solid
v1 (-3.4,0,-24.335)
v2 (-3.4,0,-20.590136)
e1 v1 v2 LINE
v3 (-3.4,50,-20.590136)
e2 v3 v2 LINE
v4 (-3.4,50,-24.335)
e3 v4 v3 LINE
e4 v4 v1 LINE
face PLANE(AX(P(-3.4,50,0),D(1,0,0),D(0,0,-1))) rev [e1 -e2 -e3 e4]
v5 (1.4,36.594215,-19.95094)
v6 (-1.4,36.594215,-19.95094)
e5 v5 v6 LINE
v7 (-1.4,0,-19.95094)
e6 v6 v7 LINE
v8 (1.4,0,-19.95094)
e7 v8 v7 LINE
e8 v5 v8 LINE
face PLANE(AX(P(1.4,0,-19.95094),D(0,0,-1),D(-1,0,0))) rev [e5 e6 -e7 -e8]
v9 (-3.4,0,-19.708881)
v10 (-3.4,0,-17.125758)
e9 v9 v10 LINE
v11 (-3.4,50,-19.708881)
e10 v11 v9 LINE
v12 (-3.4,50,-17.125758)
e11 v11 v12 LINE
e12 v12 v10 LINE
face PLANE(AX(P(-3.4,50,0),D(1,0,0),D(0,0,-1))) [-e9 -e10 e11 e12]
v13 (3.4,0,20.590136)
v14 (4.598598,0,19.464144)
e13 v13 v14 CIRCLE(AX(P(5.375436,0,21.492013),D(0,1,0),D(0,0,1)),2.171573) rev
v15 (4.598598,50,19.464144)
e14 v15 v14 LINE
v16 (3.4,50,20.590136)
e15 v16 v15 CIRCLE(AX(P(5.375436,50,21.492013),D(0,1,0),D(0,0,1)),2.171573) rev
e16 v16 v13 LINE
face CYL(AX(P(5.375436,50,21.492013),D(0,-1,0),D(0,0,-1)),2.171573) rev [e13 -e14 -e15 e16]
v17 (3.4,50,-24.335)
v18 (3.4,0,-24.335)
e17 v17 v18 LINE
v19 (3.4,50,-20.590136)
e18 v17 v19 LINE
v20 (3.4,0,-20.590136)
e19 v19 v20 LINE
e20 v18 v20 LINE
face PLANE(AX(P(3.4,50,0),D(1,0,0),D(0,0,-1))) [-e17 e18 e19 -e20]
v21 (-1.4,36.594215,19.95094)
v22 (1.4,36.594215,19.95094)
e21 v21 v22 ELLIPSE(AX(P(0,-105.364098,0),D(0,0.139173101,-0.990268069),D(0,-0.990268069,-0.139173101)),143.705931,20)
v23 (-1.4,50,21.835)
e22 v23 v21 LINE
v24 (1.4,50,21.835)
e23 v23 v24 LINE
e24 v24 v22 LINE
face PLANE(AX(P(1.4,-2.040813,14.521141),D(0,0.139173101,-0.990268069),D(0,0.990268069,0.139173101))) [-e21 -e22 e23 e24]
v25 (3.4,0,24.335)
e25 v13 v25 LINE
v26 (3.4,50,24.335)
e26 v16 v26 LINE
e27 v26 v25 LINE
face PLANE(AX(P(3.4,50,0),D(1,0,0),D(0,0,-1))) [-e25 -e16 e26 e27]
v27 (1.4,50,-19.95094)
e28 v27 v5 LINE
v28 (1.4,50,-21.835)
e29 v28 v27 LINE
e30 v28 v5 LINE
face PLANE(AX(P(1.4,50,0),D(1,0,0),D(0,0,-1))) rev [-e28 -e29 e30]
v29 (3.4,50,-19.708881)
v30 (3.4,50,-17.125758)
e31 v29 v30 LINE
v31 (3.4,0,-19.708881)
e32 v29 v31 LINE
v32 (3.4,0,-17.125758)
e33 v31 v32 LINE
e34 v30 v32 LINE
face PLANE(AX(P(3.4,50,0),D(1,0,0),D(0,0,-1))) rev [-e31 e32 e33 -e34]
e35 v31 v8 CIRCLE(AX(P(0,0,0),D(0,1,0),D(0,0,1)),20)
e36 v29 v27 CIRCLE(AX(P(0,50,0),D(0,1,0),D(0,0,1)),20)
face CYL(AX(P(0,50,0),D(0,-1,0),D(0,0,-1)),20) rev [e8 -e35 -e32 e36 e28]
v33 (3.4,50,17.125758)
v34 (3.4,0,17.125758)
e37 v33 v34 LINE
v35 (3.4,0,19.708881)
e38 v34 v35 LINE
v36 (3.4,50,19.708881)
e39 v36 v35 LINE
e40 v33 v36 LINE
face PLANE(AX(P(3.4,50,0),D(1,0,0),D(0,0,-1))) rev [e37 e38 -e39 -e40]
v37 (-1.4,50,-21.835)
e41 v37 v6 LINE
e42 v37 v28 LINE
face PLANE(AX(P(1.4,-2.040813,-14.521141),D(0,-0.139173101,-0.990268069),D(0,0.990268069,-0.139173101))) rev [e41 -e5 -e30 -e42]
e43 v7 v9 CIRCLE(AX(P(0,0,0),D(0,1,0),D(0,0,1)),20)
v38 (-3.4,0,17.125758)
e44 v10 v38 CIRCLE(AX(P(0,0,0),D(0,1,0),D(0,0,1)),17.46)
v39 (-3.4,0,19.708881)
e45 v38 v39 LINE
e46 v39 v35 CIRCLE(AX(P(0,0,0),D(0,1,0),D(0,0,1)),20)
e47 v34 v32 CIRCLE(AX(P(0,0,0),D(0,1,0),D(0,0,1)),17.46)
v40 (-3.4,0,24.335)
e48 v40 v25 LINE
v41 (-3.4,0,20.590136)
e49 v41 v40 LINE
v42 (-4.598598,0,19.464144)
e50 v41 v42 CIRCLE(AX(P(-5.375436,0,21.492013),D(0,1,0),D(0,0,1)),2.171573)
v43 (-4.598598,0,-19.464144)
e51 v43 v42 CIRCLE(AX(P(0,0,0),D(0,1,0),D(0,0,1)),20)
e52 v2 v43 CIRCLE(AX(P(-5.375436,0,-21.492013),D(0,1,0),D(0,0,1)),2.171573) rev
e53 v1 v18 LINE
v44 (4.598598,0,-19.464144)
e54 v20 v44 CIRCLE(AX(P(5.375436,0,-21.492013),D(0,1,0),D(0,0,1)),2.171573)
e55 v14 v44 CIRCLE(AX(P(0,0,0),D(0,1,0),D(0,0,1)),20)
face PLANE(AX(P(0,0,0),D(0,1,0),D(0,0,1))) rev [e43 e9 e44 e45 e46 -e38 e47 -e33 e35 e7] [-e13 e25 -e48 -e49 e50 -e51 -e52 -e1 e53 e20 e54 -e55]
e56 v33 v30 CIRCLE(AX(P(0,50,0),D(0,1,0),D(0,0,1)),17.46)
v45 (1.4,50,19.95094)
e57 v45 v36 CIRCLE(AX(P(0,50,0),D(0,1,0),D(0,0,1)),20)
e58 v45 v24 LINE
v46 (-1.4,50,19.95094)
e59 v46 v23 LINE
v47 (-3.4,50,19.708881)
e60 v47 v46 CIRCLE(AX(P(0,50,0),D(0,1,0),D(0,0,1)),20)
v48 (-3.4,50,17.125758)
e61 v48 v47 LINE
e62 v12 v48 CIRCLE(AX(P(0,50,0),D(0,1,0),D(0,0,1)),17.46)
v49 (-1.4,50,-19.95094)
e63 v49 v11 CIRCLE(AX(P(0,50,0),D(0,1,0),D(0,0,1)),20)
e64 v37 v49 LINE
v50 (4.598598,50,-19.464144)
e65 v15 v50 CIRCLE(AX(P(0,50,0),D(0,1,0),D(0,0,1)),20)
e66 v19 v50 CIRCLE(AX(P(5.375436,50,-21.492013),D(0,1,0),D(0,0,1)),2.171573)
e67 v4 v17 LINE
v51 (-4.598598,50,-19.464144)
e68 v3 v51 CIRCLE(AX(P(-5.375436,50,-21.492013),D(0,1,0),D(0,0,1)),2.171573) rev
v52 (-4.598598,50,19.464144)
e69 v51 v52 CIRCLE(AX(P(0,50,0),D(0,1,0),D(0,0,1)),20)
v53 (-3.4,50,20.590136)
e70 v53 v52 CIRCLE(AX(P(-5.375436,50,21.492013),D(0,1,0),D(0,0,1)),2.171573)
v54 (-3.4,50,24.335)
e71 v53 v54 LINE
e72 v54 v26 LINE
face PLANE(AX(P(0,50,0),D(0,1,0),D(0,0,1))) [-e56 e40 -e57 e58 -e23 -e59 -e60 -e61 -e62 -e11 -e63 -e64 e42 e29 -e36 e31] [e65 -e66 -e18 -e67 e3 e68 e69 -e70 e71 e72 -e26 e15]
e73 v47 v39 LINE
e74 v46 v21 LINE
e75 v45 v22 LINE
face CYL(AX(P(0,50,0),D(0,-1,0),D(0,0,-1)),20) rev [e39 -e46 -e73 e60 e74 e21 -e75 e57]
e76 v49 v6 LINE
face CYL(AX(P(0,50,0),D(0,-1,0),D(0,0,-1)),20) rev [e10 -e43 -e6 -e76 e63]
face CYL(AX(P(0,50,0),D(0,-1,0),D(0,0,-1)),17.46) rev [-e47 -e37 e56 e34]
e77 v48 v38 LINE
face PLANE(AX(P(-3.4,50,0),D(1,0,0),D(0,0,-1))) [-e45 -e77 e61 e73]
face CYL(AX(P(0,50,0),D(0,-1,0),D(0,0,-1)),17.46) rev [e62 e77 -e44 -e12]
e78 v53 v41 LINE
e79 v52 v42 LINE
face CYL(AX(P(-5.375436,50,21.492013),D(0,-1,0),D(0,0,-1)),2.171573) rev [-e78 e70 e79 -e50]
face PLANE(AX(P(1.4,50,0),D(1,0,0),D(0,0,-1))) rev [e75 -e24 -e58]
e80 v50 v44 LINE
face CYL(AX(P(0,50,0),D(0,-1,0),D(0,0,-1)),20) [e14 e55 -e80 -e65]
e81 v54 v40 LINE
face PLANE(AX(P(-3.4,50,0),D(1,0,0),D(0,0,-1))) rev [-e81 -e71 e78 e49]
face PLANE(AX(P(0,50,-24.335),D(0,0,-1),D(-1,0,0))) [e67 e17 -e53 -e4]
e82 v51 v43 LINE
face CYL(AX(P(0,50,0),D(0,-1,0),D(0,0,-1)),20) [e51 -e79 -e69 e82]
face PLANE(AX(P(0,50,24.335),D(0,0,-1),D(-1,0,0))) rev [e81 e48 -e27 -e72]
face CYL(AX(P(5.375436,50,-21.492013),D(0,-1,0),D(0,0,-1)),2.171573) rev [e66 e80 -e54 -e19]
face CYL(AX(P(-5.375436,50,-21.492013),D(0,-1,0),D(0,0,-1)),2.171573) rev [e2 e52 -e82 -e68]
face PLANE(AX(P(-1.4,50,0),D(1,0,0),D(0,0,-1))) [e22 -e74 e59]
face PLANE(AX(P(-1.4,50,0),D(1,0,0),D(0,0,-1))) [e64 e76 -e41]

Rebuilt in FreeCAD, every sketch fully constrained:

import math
import FreeCAD as App
import Part
import Sketcher

V = App.Vector
Q = App.Units.Quantity


def add_polygon(sketch, points):
    """Adds a closed chain of lines whose ends are joined by coincident constraints."""
    first, n = sketch.GeometryCount, len(points)
    for a, b in zip(points, points[1:] + points[:1]):
        sketch.addGeometry(Part.LineSegment(App.Vector(*a, 0), App.Vector(*b, 0)), False)
    for i in range(n):
        sketch.addConstraint(Sketcher.Constraint("Coincident", first + i, 2, first + (i + 1) % n, 1))

doc = App.newDocument("Part")
params = doc.addObject("Spreadsheet::Sheet", "Params")
for row, (alias, value) in enumerate([
    ("sketch1_radius", "20 mm"),
    ("sketch1_radius2", "17.46 mm"),
    ("sketch1_width", "6.8 mm"),
    ("sketch1_width2", "2.8 mm"),
    ("pad1_length", "50 mm"),
    ("sketch2_width", "50 mm"),
    ("pad2_length", "2.8 mm"),
    ("sketch3_radius", "20 mm"),
    ("sketch3_width", "2.8 mm"),
], start=1):
    params.set(f"A{row}", alias)
    params.set(f"B{row}", "=" + value)
    params.setAlias(f"B{row}", alias)

body = doc.addObject("PartDesign::Body", "Body")

sketch1 = body.newObject("Sketcher::SketchObject", "Sketch")
sketch1.AttachmentSupport = (doc.getObject("XZ_Plane"), [""])
sketch1.MapMode = "FlatFace"
sketch1.addGeometry([
    Part.ArcOfCircle(Part.Circle(V(5.4, -21.5, 0), V(0, 0, 1), 2.2), math.radians(111), math.radians(155)),
    Part.LineSegment(V(3.4, -20.6, 0), V(3.4, -24.3, 0)),
    Part.LineSegment(V(3.4, -24.3, 0), V(-3.4, -24.3, 0)),
    Part.LineSegment(V(-3.4, -24.3, 0), V(-3.4, -20.6, 0)),
    Part.ArcOfCircle(Part.Circle(V(-5.4, -21.5, 0), V(0, 0, 1), 2.2), math.radians(25), math.radians(69)),
    Part.ArcOfCircle(Part.Circle(V(0, 0, 0), V(0, 0, 1), 20), math.radians(103), math.radians(257)),
    Part.ArcOfCircle(Part.Circle(V(-5.4, 21.5, 0), V(0, 0, 1), 2.2), math.radians(-69), math.radians(-25)),
    Part.LineSegment(V(-3.4, 20.6, 0), V(-3.4, 24.3, 0)),
    Part.LineSegment(V(-3.4, 24.3, 0), V(3.4, 24.3, 0)),
    Part.LineSegment(V(3.4, 24.3, 0), V(3.4, 20.6, 0)),
    Part.ArcOfCircle(Part.Circle(V(5.4, 21.5, 0), V(0, 0, 1), 2.2), math.radians(-155), math.radians(-111)),
    Part.ArcOfCircle(Part.Circle(V(0, 0, 0), V(0, 0, 1), 20), math.radians(0), math.radians(77)),
    Part.ArcOfCircle(Part.Circle(V(0, 0, 0), V(0, 0, 1), 20), math.radians(-77), math.radians(0)),
    Part.LineSegment(V(-3.4, 19.7, 0), V(-3.4, 17.1, 0)),
    Part.ArcOfCircle(Part.Circle(V(0, 0, 0), V(0, 0, 1), 17.5), math.radians(101), math.radians(259)),
    Part.LineSegment(V(-3.4, -17.1, 0), V(-3.4, -19.7, 0)),
    Part.ArcOfCircle(Part.Circle(V(0, 0, 0), V(0, 0, 1), 20), math.radians(-99.79), math.radians(-94.01)),
    Part.LineSegment(V(-1.4, -20, 0), V(-1.4, -21.8, 0)),
    Part.LineSegment(V(-1.4, -21.8, 0), V(1.4, -21.8, 0)),
    Part.LineSegment(V(1.4, -21.8, 0), V(1.4, -20, 0)),
    Part.ArcOfCircle(Part.Circle(V(0, 0, 0), V(0, 0, 1), 20), math.radians(-85.99), math.radians(-80.21)),
    Part.LineSegment(V(3.4, -19.7, 0), V(3.4, -17.1, 0)),
    Part.ArcOfCircle(Part.Circle(V(0, 0, 0), V(0, 0, 1), 17.5), math.radians(-79), math.radians(0)),
    Part.ArcOfCircle(Part.Circle(V(0, 0, 0), V(0, 0, 1), 17.5), math.radians(0), math.radians(79)),
    Part.LineSegment(V(3.4, 17.1, 0), V(3.4, 19.7, 0)),
    Part.ArcOfCircle(Part.Circle(V(0, 0, 0), V(0, 0, 1), 20), math.radians(80.21), math.radians(85.99)),
    Part.LineSegment(V(1.4, 20, 0), V(1.4, 21.8, 0)),
    Part.LineSegment(V(1.4, 21.8, 0), V(-1.4, 21.8, 0)),
    Part.LineSegment(V(-1.4, 21.8, 0), V(-1.4, 20, 0)),
    Part.ArcOfCircle(Part.Circle(V(0, 0, 0), V(0, 0, 1), 20), math.radians(94.01), math.radians(99.79)),
], False)
sketch1.addConstraint([
    Sketcher.Constraint("Coincident", 0, 2, 1, 1),
    Sketcher.Constraint("Coincident", 1, 2, 2, 1),
    Sketcher.Constraint("Coincident", 2, 2, 3, 1),
    Sketcher.Constraint("Coincident", 3, 2, 4, 1),
    Sketcher.Constraint("Coincident", 4, 2, 5, 2),
    Sketcher.Constraint("Coincident", 5, 1, 6, 1),
    Sketcher.Constraint("Coincident", 6, 2, 7, 1),
    Sketcher.Constraint("Coincident", 7, 2, 8, 1),
    Sketcher.Constraint("Coincident", 8, 2, 9, 1),
    Sketcher.Constraint("Coincident", 9, 2, 10, 1),
    Sketcher.Constraint("Coincident", 10, 2, 11, 2),
    Sketcher.Constraint("Tangent", 11, 1, 12, 2),
    Sketcher.Constraint("Coincident", 12, 1, 0, 1),
    Sketcher.Constraint("Coincident", 13, 2, 14, 1),
    Sketcher.Constraint("Coincident", 14, 2, 15, 1),
    Sketcher.Constraint("Coincident", 15, 2, 16, 1),
    Sketcher.Constraint("Coincident", 16, 2, 17, 1),
    Sketcher.Constraint("Coincident", 17, 2, 18, 1),
    Sketcher.Constraint("Coincident", 18, 2, 19, 1),
    Sketcher.Constraint("Coincident", 19, 2, 20, 1),
    Sketcher.Constraint("Coincident", 20, 2, 21, 1),
    Sketcher.Constraint("Coincident", 21, 2, 22, 1),
    Sketcher.Constraint("Tangent", 22, 2, 23, 1),
    Sketcher.Constraint("Coincident", 23, 2, 24, 1),
    Sketcher.Constraint("Coincident", 24, 2, 25, 1),
    Sketcher.Constraint("Coincident", 25, 2, 26, 1),
    Sketcher.Constraint("Coincident", 26, 2, 27, 1),
    Sketcher.Constraint("Coincident", 27, 2, 28, 1),
    Sketcher.Constraint("Coincident", 28, 2, 29, 1),
    Sketcher.Constraint("Coincident", 29, 2, 13, 1),
    Sketcher.Constraint("Vertical", 1),
    Sketcher.Constraint("Horizontal", 2),
    Sketcher.Constraint("Vertical", 3),
    Sketcher.Constraint("Vertical", 7),
    Sketcher.Constraint("Horizontal", 8),
    Sketcher.Constraint("Vertical", 9),
    Sketcher.Constraint("Vertical", 13),
    Sketcher.Constraint("Vertical", 15),
    Sketcher.Constraint("Vertical", 17),
    Sketcher.Constraint("Horizontal", 18),
    Sketcher.Constraint("Vertical", 19),
    Sketcher.Constraint("Vertical", 21),
    Sketcher.Constraint("Vertical", 24),
    Sketcher.Constraint("Vertical", 26),
    Sketcher.Constraint("Horizontal", 27),
    Sketcher.Constraint("Vertical", 28),
    Sketcher.Constraint("Coincident", 5, 3, -1, 1),
    Sketcher.Constraint("Coincident", 11, 3, -1, 1),
    Sketcher.Constraint("Coincident", 14, 3, -1, 1),
    Sketcher.Constraint("Coincident", 16, 3, -1, 1),
    Sketcher.Constraint("Coincident", 20, 3, -1, 1),
    Sketcher.Constraint("Coincident", 22, 3, -1, 1),
    Sketcher.Constraint("Coincident", 25, 3, -1, 1),
    Sketcher.Constraint("Coincident", 29, 3, -1, 1),
    Sketcher.Constraint("Equal", 0, 4),
    Sketcher.Constraint("Equal", 4, 6),
    Sketcher.Constraint("Equal", 6, 10),
    Sketcher.Constraint("Equal", 5, 11),
    Sketcher.Constraint("Equal", 11, 12),
    Sketcher.Constraint("Equal", 12, 16),
    Sketcher.Constraint("Equal", 16, 20),
    Sketcher.Constraint("Equal", 14, 22),
    Sketcher.Constraint("Equal", 22, 23),
    Sketcher.Constraint("Equal", 20, 25),
    Sketcher.Constraint("Equal", 25, 29),
    Sketcher.Constraint("Symmetric", 0, 3, 6, 3, -1, 1),
    Sketcher.Constraint("Symmetric", 4, 3, 10, 3, -1, 1),
    Sketcher.Constraint("Symmetric", 1, 2, 7, 2, -1, 1),
    Sketcher.Constraint("Symmetric", 17, 2, 26, 2, -1, 1),
    Sketcher.Constraint("Symmetric", 0, 3, 4, 3, -2),
    Sketcher.Constraint("PointOnObject", 11, 1, -1),
    Sketcher.Constraint("PointOnObject", 22, 2, -1),
    Sketcher.Constraint("Horizontal", 0, 2, 3, 2),
    Sketcher.Constraint("Horizontal", 6, 2, 9, 2),
    Sketcher.Constraint("Horizontal", 16, 2, 19, 2),
    Sketcher.Constraint("Horizontal", 15, 2, 20, 2),
    Sketcher.Constraint("Horizontal", 13, 2, 23, 2),
    Sketcher.Constraint("Horizontal", 25, 2, 28, 2),
    Sketcher.Constraint("Vertical", 7, 2, 13, 2),
    Sketcher.Constraint("Vertical", 13, 2, 14, 2),
    Sketcher.Constraint("Radius", 5, 20.0),
    Sketcher.Constraint("Radius", 14, 17.46),
    Sketcher.Constraint("DistanceX", 2, 2, 2, 1, 6.8),
    Sketcher.Constraint("DistanceX", 18, 1, 18, 2, 2.8),
    Sketcher.Constraint("DistanceY", 2, 2, 17, 2, 2.5),
    Sketcher.Constraint("DistanceY", 1, 2, -1, 1, 24.335),
    Sketcher.Constraint("Radius", 0, 2.171573),
    Sketcher.Constraint("DistanceY", 1, 2, 1, 1, 3.744864),
    Sketcher.Constraint("DistanceX", 4, 3, 4, 2, 0.776839),
])
sketch1.setExpression("Constraints[80]", "Params.sketch1_radius")
sketch1.setExpression("Constraints[81]", "Params.sketch1_radius2")
sketch1.setExpression("Constraints[82]", "Params.sketch1_width")
sketch1.setExpression("Constraints[83]", "Params.sketch1_width2")
pad1 = body.newObject("PartDesign::Pad", "Pad")
pad1.Profile = sketch1
pad1.setExpression("Length", "Params.pad1_length")
pad1.Reversed = True

sketch2 = body.newObject("Sketcher::SketchObject", "Sketch001")
sketch2.AttachmentSupport = (doc.getObject("YZ_Plane"), [""])
sketch2.MapMode = "FlatFace"
sketch2.AttachmentOffset = App.Placement(V(0, 0, -1.4), App.Rotation())
add_polygon(sketch2, [(0, -21.8), (50, -21.8), (36.6, -20), (0, -20)])
add_polygon(sketch2, [(50, 21.8), (0, 21.8), (0, 14.8)])
sketch2.addConstraint([
    Sketcher.Constraint("Horizontal", 0),
    Sketcher.Constraint("Horizontal", 2),
    Sketcher.Constraint("Vertical", 3),
    Sketcher.Constraint("Horizontal", 4),
    Sketcher.Constraint("Vertical", 5),
    Sketcher.Constraint("Symmetric", 3, 2, 4, 2, -1, 1),
    Sketcher.Constraint("PointOnObject", 2, 2, -2),
    Sketcher.Constraint("Vertical", 0, 2, 6, 2),
    Sketcher.Constraint("DistanceX", 0, 1, 0, 2, 50.0),
    Sketcher.Constraint("Angle", 1, Q("172 deg")),
    Sketcher.Constraint("Angle", 6, Q("8 deg")),
    Sketcher.Constraint("DistanceY", 3, 2, 4, 2, 43.67),
    Sketcher.Constraint("DistanceY", 3, 2, 3, 1, 1.88406),
])
sketch2.setExpression("Constraints[15]", "Params.sketch2_width")
pad2 = body.newObject("PartDesign::Pad", "Pad001")
pad2.Profile = sketch2
pad2.setExpression("Length", "Params.pad2_length")

sketch3 = body.newObject("Sketcher::SketchObject", "Sketch002")
sketch3.AttachmentSupport = (doc.getObject("XZ_Plane"), [""])
sketch3.MapMode = "FlatFace"
sketch3.addGeometry([
    Part.ArcOfCircle(Part.Circle(V(0, 0, 0), V(0, 0, 1), 20), math.radians(85.99), math.radians(94.01)),
    Part.LineSegment(V(-1.4, 20, 0), V(-1.4, 14.8, 0)),
    Part.LineSegment(V(-1.4, 14.8, 0), V(1.4, 14.8, 0)),
    Part.LineSegment(V(1.4, 14.8, 0), V(1.4, 20, 0)),
], False)
sketch3.addConstraint([
    Sketcher.Constraint("Coincident", 0, 2, 1, 1),
    Sketcher.Constraint("Coincident", 1, 2, 2, 1),
    Sketcher.Constraint("Coincident", 2, 2, 3, 1),
    Sketcher.Constraint("Coincident", 3, 2, 0, 1),
    Sketcher.Constraint("Vertical", 1),
    Sketcher.Constraint("Horizontal", 2),
    Sketcher.Constraint("Vertical", 3),
    Sketcher.Constraint("Coincident", 0, 3, -1, 1),
    Sketcher.Constraint("Horizontal", 0, 2, 3, 2),
    Sketcher.Constraint("Radius", 0, 20.0),
    Sketcher.Constraint("DistanceX", 2, 1, 2, 2, 2.8),
    Sketcher.Constraint("DistanceY", 1, 2, 1, 1, 5.142982),
])
sketch3.setExpression("Constraints[9]", "Params.sketch3_radius")
sketch3.setExpression("Constraints[10]", "Params.sketch3_width")
pocket1 = body.newObject("PartDesign::Pocket", "Pocket")
pocket1.Profile = sketch3
pocket1.Type = "ThroughAll"
pocket1.Midplane = True

doc.recompute()
